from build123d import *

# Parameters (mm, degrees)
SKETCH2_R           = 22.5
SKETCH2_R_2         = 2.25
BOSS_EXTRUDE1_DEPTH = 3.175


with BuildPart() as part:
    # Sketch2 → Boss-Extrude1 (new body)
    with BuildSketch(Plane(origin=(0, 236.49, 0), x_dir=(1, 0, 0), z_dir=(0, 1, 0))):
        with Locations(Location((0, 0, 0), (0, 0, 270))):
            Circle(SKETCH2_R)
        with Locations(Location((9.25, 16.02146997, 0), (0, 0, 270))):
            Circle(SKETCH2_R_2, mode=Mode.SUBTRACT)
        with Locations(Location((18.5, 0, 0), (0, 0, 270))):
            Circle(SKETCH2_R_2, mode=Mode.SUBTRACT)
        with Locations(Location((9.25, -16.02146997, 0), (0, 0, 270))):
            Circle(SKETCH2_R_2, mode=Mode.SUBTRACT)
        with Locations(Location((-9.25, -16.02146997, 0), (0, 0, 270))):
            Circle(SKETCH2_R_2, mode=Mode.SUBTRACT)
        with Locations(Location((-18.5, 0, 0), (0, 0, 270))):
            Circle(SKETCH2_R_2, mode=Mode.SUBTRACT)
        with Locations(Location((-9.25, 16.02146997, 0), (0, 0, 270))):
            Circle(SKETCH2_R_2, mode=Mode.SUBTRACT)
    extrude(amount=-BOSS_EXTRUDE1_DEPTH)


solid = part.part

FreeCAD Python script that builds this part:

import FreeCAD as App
import Part
import Sketcher
Q = App.Units.Quantity

doc = App.newDocument("Part")
body = doc.addObject("PartDesign::Body", "Body")

# Sketch on XZ plane
sketch1 = body.newObject("Sketcher::SketchObject", "Sketch")
sketch1.AttachmentSupport = (doc.getObject("XZ_Plane"), [""])
sketch1.MapMode = "FlatFace"
sketch1.AttachmentOffset = App.Placement(App.Vector(0, 0, -236.49), App.Rotation())
sketch1.addGeometry([
    Part.Circle(App.Vector(0, 0, 0), App.Vector(0, 0, 1), 22.5),  # 0
    Part.Circle(App.Vector(-9.2, -16, 0), App.Vector(0, 0, 1), 2.2),  # 1
    Part.Circle(App.Vector(-18.5, 0, 0), App.Vector(0, 0, 1), 2.2),  # 2
    Part.Circle(App.Vector(-9.2, 16, 0), App.Vector(0, 0, 1), 2.2),  # 3
    Part.Circle(App.Vector(9.2, -16, 0), App.Vector(0, 0, 1), 2.2),  # 4
    Part.Circle(App.Vector(18.5, 0, 0), App.Vector(0, 0, 1), 2.2),  # 5
    Part.Circle(App.Vector(9.2, 16, 0), App.Vector(0, 0, 1), 2.2),  # 6
], False)
sketch1.addConstraint([
    Sketcher.Constraint("Coincident", 0, 3, -1, 1),
    Sketcher.Constraint("Equal", 1, 2),
    Sketcher.Constraint("Equal", 2, 3),
    Sketcher.Constraint("Equal", 3, 4),
    Sketcher.Constraint("Equal", 4, 5),
    Sketcher.Constraint("Equal", 5, 6),
    Sketcher.Constraint("Symmetric", 3, 3, 4, 3, -1, 1),
    Sketcher.Constraint("Symmetric", 2, 3, 5, 3, -1, 1),
    Sketcher.Constraint("Symmetric", 1, 3, 6, 3, -1, 1),
    Sketcher.Constraint("Symmetric", 1, 3, 4, 3, -2),
    Sketcher.Constraint("PointOnObject", 2, 3, -1),
    Sketcher.Constraint("Diameter", 0, Q("45 mm")),
    Sketcher.Constraint("Diameter", 1, Q("4.5 mm")),
    Sketcher.Constraint("DistanceX", 2, 3, 5, 3, Q("37 mm")),
    Sketcher.Constraint("DistanceX", 1, 3, 4, 3, Q("18.5 mm")),
    Sketcher.Constraint("DistanceY", 1, 3, -1, 1, Q("16.02147 mm")),
])
pad1 = body.newObject("PartDesign::Pad", "Pad")
pad1.Profile = sketch1
pad1.Length = 3.175

doc.recompute()
